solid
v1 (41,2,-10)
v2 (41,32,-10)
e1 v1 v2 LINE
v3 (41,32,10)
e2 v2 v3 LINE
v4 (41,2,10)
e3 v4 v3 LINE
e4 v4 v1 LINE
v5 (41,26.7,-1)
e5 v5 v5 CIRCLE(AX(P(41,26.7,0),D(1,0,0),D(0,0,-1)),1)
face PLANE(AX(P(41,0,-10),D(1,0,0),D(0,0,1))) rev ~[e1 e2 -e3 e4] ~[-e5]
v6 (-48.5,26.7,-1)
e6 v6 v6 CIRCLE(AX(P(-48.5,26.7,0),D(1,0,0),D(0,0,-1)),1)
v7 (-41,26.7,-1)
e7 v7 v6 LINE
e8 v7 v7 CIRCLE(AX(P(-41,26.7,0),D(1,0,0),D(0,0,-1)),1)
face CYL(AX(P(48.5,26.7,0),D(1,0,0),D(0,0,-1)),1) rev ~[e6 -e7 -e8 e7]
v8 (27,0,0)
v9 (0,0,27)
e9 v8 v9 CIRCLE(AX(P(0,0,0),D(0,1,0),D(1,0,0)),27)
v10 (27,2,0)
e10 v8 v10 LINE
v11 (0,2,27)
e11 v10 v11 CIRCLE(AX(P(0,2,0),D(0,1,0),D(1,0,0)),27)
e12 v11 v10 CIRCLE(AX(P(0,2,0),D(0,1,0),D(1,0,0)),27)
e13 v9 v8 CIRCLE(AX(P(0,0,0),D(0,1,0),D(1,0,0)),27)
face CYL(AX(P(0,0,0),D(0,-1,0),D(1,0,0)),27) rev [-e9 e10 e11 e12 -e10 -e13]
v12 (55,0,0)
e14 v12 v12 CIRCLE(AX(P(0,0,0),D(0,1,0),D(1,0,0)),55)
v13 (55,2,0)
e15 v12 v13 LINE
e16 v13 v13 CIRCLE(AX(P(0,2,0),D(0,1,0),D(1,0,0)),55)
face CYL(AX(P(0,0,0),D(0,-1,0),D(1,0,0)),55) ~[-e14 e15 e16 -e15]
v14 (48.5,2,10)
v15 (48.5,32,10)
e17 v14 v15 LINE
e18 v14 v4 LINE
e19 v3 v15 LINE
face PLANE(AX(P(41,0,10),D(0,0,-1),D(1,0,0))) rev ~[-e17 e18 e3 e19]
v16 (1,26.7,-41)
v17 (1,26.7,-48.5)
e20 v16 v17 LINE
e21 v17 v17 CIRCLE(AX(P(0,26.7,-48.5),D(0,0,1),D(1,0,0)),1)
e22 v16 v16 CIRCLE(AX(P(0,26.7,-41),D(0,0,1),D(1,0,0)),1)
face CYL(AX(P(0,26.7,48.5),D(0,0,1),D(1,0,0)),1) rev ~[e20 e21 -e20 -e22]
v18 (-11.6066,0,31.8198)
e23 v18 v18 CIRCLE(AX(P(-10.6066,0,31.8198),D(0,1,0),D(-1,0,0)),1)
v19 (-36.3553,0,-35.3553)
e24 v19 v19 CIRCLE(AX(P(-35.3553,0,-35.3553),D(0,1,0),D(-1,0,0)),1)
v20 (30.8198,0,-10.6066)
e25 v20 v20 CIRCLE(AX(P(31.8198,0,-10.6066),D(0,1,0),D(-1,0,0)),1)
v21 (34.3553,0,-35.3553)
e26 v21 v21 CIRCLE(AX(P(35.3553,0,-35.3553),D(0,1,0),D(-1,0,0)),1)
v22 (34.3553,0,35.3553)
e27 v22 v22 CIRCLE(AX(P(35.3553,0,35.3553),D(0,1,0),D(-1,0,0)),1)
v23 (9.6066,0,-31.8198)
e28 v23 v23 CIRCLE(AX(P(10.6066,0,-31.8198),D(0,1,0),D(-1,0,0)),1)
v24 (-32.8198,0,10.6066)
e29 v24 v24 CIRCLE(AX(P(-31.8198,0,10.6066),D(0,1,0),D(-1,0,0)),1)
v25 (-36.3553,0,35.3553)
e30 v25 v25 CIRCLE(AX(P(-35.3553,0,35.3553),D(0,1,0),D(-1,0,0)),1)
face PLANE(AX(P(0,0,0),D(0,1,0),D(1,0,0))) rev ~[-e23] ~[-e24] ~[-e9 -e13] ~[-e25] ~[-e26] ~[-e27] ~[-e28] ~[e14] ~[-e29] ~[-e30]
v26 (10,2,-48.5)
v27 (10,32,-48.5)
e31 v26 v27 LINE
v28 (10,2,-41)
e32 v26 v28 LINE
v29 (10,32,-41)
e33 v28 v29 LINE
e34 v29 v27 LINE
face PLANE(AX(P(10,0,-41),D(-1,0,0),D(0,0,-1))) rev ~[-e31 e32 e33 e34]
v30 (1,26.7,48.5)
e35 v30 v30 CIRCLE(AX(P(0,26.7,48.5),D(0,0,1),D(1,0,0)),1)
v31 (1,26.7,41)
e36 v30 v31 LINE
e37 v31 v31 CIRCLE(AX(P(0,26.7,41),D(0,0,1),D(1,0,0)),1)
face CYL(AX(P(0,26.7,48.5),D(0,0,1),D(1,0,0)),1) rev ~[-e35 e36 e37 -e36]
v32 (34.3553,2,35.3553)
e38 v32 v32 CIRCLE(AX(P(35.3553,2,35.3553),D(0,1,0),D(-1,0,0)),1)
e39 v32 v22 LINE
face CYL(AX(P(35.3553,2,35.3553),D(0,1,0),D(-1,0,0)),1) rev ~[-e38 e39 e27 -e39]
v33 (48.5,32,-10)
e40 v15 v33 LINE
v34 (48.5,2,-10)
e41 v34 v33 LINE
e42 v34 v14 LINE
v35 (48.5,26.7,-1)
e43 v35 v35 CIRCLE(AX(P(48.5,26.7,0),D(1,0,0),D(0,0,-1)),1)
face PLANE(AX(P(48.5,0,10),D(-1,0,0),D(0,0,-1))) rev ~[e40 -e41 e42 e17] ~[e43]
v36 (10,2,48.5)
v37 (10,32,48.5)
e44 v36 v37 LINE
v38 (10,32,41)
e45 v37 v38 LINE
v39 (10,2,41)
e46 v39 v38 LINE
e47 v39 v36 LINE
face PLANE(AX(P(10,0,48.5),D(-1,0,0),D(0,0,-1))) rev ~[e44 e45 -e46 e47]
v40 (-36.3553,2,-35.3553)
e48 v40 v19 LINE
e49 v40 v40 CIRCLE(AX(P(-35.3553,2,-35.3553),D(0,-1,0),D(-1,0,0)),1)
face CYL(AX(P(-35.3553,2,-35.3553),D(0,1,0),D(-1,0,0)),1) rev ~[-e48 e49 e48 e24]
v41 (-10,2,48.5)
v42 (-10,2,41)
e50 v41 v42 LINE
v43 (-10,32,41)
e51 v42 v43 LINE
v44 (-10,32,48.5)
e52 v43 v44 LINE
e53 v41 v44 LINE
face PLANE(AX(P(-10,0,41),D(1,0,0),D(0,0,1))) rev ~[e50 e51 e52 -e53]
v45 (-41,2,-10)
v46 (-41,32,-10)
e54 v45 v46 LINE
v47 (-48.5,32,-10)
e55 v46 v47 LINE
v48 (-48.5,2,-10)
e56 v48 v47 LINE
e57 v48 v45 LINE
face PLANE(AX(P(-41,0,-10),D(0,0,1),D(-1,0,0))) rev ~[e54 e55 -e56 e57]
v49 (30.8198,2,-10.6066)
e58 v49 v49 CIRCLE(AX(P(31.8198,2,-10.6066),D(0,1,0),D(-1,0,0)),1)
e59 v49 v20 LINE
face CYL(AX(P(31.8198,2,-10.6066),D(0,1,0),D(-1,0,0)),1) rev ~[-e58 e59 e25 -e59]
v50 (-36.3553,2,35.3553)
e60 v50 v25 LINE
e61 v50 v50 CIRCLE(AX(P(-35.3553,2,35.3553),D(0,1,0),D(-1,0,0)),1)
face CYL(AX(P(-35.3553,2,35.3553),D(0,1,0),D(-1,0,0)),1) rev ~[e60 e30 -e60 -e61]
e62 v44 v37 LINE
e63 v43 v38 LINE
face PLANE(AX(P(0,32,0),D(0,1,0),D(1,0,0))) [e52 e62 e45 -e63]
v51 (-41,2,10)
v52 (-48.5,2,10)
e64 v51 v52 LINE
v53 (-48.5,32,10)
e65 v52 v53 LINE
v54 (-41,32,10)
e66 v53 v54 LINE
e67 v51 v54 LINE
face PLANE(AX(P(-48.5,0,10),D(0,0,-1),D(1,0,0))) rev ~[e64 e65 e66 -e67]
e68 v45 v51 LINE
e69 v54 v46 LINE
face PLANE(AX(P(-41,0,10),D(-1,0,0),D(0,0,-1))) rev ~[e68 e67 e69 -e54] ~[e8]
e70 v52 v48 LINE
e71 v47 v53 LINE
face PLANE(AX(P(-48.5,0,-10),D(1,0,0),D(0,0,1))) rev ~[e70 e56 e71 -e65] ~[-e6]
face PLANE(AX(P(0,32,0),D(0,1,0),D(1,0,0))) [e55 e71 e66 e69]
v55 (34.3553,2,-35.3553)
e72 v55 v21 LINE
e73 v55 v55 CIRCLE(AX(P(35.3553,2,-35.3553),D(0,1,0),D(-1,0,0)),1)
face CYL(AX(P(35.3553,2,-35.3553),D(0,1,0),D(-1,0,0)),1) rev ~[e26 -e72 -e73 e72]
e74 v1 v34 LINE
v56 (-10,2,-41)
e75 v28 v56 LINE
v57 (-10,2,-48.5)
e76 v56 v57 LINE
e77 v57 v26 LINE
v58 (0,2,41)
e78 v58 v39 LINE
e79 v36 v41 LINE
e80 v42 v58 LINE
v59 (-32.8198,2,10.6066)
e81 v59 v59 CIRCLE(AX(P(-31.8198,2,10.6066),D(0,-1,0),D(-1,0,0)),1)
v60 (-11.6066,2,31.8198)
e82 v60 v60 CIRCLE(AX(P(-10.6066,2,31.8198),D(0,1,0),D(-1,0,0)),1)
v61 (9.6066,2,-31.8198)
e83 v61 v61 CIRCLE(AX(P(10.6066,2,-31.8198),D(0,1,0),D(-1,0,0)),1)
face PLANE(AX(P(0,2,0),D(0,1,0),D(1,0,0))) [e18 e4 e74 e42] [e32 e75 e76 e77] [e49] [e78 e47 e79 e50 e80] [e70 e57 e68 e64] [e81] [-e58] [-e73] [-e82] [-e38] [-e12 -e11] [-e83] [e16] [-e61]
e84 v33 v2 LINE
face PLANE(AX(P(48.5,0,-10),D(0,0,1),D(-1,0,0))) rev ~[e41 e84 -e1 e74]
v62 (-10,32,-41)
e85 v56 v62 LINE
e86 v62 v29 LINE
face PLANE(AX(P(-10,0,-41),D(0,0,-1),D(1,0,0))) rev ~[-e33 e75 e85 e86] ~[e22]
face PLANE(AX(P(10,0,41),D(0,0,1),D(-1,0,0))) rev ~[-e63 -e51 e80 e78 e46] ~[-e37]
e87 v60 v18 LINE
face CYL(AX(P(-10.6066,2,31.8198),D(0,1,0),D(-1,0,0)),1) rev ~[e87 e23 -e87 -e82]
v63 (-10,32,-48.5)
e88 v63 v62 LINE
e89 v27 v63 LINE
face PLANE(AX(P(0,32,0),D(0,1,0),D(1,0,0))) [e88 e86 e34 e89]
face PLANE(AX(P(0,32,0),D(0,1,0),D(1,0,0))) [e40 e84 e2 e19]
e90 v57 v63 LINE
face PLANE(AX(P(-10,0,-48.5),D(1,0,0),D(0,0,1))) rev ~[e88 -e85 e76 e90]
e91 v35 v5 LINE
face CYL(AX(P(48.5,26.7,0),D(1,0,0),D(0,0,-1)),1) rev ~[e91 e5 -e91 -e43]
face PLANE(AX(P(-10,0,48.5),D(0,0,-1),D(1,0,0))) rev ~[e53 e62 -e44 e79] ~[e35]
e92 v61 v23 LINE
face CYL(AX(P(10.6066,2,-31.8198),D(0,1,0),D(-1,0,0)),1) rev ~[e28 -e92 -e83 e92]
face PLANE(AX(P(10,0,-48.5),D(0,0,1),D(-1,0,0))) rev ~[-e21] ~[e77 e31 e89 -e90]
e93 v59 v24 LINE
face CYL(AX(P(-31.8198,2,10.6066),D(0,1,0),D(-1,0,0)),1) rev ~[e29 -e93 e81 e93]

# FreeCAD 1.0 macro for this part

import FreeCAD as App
import Part
import Sketcher

V = App.Vector


def add_polygon(sketch, points):
    """Adds a closed chain of lines whose ends are joined by coincident constraints."""
    first, n = sketch.GeometryCount, len(points)
    for a, b in zip(points, points[1:] + points[:1]):
        sketch.addGeometry(Part.LineSegment(App.Vector(*a, 0), App.Vector(*b, 0)), False)
    for i in range(n):
        sketch.addConstraint(Sketcher.Constraint("Coincident", first + i, 2, first + (i + 1) % n, 1))

doc = App.newDocument("Part")
body = doc.addObject("PartDesign::Body", "Body")

# Sketch on XZ plane
sketch1 = body.newObject("Sketcher::SketchObject", "Sketch")
sketch1.AttachmentSupport = (doc.getObject("XZ_Plane"), [""])
sketch1.MapMode = "FlatFace"
sketch1.addGeometry(Part.Circle(V(0, 0, 0), V(0, 0, 1), 55), False)
sketch1.addGeometry(Part.Circle(V(0, 0, 0), V(0, 0, 1), 27), False)
sketch1.addConstraint(Sketcher.Constraint("Coincident", 0, 3, -1, 1))
sketch1.addConstraint(Sketcher.Constraint("Coincident", 1, 3, -1, 1))
sketch1.addConstraint(Sketcher.Constraint("Diameter", 0, 110.0))
sketch1.addConstraint(Sketcher.Constraint("Diameter", 1, 54.0))
pad1 = body.newObject("PartDesign::Pad", "Pad")
pad1.Profile = sketch1
pad1.Length = 2
pad1.Reversed = True

# Sketch on XZ plane
sketch2 = body.newObject("Sketcher::SketchObject", "Sketch001")
sketch2.AttachmentSupport = (doc.getObject("XZ_Plane"), [""])
sketch2.MapMode = "FlatFace"
add_polygon(sketch2, [(10, 41), (-10, 41), (-10, 48.5), (10, 48.5)])  # lines 0-3
add_polygon(sketch2, [(48.5, -10), (41, -10), (41, 10), (48.5, 10)])  # lines 4-7
add_polygon(sketch2, [(-10, -48.5), (-10, -41), (10, -41), (10, -48.5)])  # lines 8-11
add_polygon(sketch2, [(-48.5, 10), (-41, 10), (-41, -10), (-48.5, -10)])  # lines 12-15
sketch2.addConstraint(Sketcher.Constraint("Horizontal", 0))
sketch2.addConstraint(Sketcher.Constraint("Vertical", 1))
sketch2.addConstraint(Sketcher.Constraint("Horizontal", 2))
sketch2.addConstraint(Sketcher.Constraint("Vertical", 3))
sketch2.addConstraint(Sketcher.Constraint("Horizontal", 4))
sketch2.addConstraint(Sketcher.Constraint("Vertical", 5))
sketch2.addConstraint(Sketcher.Constraint("Horizontal", 6))
sketch2.addConstraint(Sketcher.Constraint("Vertical", 7))
sketch2.addConstraint(Sketcher.Constraint("Vertical", 8))
sketch2.addConstraint(Sketcher.Constraint("Horizontal", 9))
sketch2.addConstraint(Sketcher.Constraint("Vertical", 10))
sketch2.addConstraint(Sketcher.Constraint("Horizontal", 11))
sketch2.addConstraint(Sketcher.Constraint("Horizontal", 12))
sketch2.addConstraint(Sketcher.Constraint("Vertical", 13))
sketch2.addConstraint(Sketcher.Constraint("Horizontal", 14))
sketch2.addConstraint(Sketcher.Constraint("Vertical", 15))
sketch2.addConstraint(Sketcher.Constraint("Symmetric", 3, 2, 8, 2, -1, 1))
sketch2.addConstraint(Sketcher.Constraint("Symmetric", 1, 2, 10, 2, -1, 1))
sketch2.addConstraint(Sketcher.Constraint("Symmetric", 4, 2, 12, 2, -1, 1))
sketch2.addConstraint(Sketcher.Constraint("Symmetric", 6, 2, 14, 2, -1, 1))
sketch2.addConstraint(Sketcher.Constraint("Horizontal", 6, 2, 12, 2))
sketch2.addConstraint(Sketcher.Constraint("Vertical", 1, 2, 8, 2))
sketch2.addConstraint(Sketcher.Constraint("Equal", 14, 1))
sketch2.addConstraint(Sketcher.Constraint("Equal", 11, 5))
sketch2.addConstraint(Sketcher.Constraint("DistanceX", 0, 2, 0, 1, 20.0))
sketch2.addConstraint(Sketcher.Constraint("DistanceX", 4, 2, 4, 1, 7.5))
sketch2.addConstraint(Sketcher.Constraint("DistanceY", -1, 1, 0, 2, 41.0))
sketch2.addConstraint(Sketcher.Constraint("DistanceX", -1, 1, 4, 2, 41.0))
pad2 = body.newObject("PartDesign::Pad", "Pad001")
pad2.Profile = sketch2
pad2.Length = 32
pad2.Reversed = True

# Sketch on XZ plane
sketch3 = body.newObject("Sketcher::SketchObject", "Sketch002")
sketch3.AttachmentSupport = (doc.getObject("XZ_Plane"), [""])
sketch3.MapMode = "FlatFace"
sketch3.AttachmentOffset = App.Placement(V(0, 0, -2), App.Rotation())
sketch3.addGeometry(Part.Circle(V(-31.8198, 10.6066, 0), V(0, 0, 1), 1), False)
sketch3.addGeometry(Part.Circle(V(-10.6066, 31.8198, 0), V(0, 0, 1), 1), False)
sketch3.addGeometry(Part.Circle(V(31.8198, -10.6066, 0), V(0, 0, 1), 1), False)
sketch3.addGeometry(Part.Circle(V(10.6066, -31.8198, 0), V(0, 0, 1), 1), False)
sketch3.addConstraint(Sketcher.Constraint("Equal", 0, 1))
sketch3.addConstraint(Sketcher.Constraint("Equal", 1, 2))
sketch3.addConstraint(Sketcher.Constraint("Equal", 2, 3))
sketch3.addConstraint(Sketcher.Constraint("Symmetric", 0, 3, 2, 3, -1, 1))
sketch3.addConstraint(Sketcher.Constraint("Symmetric", 1, 3, 3, 3, -1, 1))
sketch3.addConstraint(Sketcher.Constraint("Diameter", 0, 2.0))
sketch3.addConstraint(Sketcher.Constraint("DistanceX", 0, 3, -1, 1, 31.8198))
sketch3.addConstraint(Sketcher.Constraint("DistanceY", -1, 1, 0, 3, 10.6066))
sketch3.addConstraint(Sketcher.Constraint("DistanceX", 1, 3, -1, 1, 10.6066))
sketch3.addConstraint(Sketcher.Constraint("DistanceY", -1, 1, 1, 3, 31.8198))
pocket1 = body.newObject("PartDesign::Pocket", "Pocket")
pocket1.Profile = sketch3
pocket1.Length = 30
pocket1.Reversed = True

# Sketch on XZ plane
sketch4 = body.newObject("Sketcher::SketchObject", "Sketch003")
sketch4.AttachmentSupport = (doc.getObject("XZ_Plane"), [""])
sketch4.MapMode = "FlatFace"
sketch4.AttachmentOffset = App.Placement(V(0, 0, -2), App.Rotation())
sketch4.addGeometry(Part.Circle(V(-35.3553, -35.3553, 0), V(0, 0, 1), 1), False)
sketch4.addGeometry(Part.Circle(V(-35.3553, 35.3553, 0), V(0, 0, 1), 1), False)
sketch4.addGeometry(Part.Circle(V(35.3553, 35.3553, 0), V(0, 0, 1), 1), False)
sketch4.addGeometry(Part.Circle(V(35.3553, -35.3553, 0), V(0, 0, 1), 1), False)
sketch4.addConstraint(Sketcher.Constraint("Equal", 0, 1))
sketch4.addConstraint(Sketcher.Constraint("Equal", 1, 2))
sketch4.addConstraint(Sketcher.Constraint("Equal", 2, 3))
sketch4.addConstraint(Sketcher.Constraint("Symmetric", 0, 3, 2, 3, -1, 1))
sketch4.addConstraint(Sketcher.Constraint("Symmetric", 1, 3, 3, 3, -1, 1))
sketch4.addConstraint(Sketcher.Constraint("Symmetric", 1, 3, 2, 3, -2))
sketch4.addConstraint(Sketcher.Constraint("Diameter", 0, 2.0))
sketch4.addConstraint(Sketcher.Constraint("DistanceX", 0, 3, -1, 1, 35.3553))
sketch4.addConstraint(Sketcher.Constraint("DistanceY", 0, 3, -1, 1, 35.3553))
pocket2 = body.newObject("PartDesign::Pocket", "Pocket001")
pocket2.Profile = sketch4
pocket2.Length = 10
pocket2.Reversed = True

# Sketch on XY plane
sketch5 = body.newObject("Sketcher::SketchObject", "Sketch004")
sketch5.AttachmentSupport = (doc.getObject("XY_Plane"), [""])
sketch5.MapMode = "FlatFace"
sketch5.AttachmentOffset = App.Placement(V(0, 0, 48.5), App.Rotation())
sketch5.addGeometry(Part.Circle(V(0, 26.7, 0), V(0, 0, 1), 1), False)
sketch5.addConstraint(Sketcher.Constraint("PointOnObject", 0, 3, -2))
sketch5.addConstraint(Sketcher.Constraint("Diameter", 0, 2.0))
sketch5.addConstraint(Sketcher.Constraint("DistanceY", -1, 1, 0, 3, 26.7))
pocket3 = body.newObject("PartDesign::Pocket", "Pocket002")
pocket3.Profile = sketch5
pocket3.Length = 100

# Sketch on YZ plane
sketch6 = body.newObject("Sketcher::SketchObject", "Sketch005")
sketch6.AttachmentSupport = (doc.getObject("YZ_Plane"), [""])
sketch6.MapMode = "FlatFace"
sketch6.AttachmentOffset = App.Placement(V(0, 0, 48.5), App.Rotation())
sketch6.addGeometry(Part.Circle(V(26.7, 0, 0), V(0, 0, 1), 1), False)
sketch6.addConstraint(Sketcher.Constraint("PointOnObject", 0, 3, -1))
sketch6.addConstraint(Sketcher.Constraint("Diameter", 0, 2.0))
sketch6.addConstraint(Sketcher.Constraint("DistanceX", -1, 1, 0, 3, 26.7))
pocket4 = body.newObject("PartDesign::Pocket", "Pocket003")
pocket4.Profile = sketch6
pocket4.Length = 100

doc.recompute()
